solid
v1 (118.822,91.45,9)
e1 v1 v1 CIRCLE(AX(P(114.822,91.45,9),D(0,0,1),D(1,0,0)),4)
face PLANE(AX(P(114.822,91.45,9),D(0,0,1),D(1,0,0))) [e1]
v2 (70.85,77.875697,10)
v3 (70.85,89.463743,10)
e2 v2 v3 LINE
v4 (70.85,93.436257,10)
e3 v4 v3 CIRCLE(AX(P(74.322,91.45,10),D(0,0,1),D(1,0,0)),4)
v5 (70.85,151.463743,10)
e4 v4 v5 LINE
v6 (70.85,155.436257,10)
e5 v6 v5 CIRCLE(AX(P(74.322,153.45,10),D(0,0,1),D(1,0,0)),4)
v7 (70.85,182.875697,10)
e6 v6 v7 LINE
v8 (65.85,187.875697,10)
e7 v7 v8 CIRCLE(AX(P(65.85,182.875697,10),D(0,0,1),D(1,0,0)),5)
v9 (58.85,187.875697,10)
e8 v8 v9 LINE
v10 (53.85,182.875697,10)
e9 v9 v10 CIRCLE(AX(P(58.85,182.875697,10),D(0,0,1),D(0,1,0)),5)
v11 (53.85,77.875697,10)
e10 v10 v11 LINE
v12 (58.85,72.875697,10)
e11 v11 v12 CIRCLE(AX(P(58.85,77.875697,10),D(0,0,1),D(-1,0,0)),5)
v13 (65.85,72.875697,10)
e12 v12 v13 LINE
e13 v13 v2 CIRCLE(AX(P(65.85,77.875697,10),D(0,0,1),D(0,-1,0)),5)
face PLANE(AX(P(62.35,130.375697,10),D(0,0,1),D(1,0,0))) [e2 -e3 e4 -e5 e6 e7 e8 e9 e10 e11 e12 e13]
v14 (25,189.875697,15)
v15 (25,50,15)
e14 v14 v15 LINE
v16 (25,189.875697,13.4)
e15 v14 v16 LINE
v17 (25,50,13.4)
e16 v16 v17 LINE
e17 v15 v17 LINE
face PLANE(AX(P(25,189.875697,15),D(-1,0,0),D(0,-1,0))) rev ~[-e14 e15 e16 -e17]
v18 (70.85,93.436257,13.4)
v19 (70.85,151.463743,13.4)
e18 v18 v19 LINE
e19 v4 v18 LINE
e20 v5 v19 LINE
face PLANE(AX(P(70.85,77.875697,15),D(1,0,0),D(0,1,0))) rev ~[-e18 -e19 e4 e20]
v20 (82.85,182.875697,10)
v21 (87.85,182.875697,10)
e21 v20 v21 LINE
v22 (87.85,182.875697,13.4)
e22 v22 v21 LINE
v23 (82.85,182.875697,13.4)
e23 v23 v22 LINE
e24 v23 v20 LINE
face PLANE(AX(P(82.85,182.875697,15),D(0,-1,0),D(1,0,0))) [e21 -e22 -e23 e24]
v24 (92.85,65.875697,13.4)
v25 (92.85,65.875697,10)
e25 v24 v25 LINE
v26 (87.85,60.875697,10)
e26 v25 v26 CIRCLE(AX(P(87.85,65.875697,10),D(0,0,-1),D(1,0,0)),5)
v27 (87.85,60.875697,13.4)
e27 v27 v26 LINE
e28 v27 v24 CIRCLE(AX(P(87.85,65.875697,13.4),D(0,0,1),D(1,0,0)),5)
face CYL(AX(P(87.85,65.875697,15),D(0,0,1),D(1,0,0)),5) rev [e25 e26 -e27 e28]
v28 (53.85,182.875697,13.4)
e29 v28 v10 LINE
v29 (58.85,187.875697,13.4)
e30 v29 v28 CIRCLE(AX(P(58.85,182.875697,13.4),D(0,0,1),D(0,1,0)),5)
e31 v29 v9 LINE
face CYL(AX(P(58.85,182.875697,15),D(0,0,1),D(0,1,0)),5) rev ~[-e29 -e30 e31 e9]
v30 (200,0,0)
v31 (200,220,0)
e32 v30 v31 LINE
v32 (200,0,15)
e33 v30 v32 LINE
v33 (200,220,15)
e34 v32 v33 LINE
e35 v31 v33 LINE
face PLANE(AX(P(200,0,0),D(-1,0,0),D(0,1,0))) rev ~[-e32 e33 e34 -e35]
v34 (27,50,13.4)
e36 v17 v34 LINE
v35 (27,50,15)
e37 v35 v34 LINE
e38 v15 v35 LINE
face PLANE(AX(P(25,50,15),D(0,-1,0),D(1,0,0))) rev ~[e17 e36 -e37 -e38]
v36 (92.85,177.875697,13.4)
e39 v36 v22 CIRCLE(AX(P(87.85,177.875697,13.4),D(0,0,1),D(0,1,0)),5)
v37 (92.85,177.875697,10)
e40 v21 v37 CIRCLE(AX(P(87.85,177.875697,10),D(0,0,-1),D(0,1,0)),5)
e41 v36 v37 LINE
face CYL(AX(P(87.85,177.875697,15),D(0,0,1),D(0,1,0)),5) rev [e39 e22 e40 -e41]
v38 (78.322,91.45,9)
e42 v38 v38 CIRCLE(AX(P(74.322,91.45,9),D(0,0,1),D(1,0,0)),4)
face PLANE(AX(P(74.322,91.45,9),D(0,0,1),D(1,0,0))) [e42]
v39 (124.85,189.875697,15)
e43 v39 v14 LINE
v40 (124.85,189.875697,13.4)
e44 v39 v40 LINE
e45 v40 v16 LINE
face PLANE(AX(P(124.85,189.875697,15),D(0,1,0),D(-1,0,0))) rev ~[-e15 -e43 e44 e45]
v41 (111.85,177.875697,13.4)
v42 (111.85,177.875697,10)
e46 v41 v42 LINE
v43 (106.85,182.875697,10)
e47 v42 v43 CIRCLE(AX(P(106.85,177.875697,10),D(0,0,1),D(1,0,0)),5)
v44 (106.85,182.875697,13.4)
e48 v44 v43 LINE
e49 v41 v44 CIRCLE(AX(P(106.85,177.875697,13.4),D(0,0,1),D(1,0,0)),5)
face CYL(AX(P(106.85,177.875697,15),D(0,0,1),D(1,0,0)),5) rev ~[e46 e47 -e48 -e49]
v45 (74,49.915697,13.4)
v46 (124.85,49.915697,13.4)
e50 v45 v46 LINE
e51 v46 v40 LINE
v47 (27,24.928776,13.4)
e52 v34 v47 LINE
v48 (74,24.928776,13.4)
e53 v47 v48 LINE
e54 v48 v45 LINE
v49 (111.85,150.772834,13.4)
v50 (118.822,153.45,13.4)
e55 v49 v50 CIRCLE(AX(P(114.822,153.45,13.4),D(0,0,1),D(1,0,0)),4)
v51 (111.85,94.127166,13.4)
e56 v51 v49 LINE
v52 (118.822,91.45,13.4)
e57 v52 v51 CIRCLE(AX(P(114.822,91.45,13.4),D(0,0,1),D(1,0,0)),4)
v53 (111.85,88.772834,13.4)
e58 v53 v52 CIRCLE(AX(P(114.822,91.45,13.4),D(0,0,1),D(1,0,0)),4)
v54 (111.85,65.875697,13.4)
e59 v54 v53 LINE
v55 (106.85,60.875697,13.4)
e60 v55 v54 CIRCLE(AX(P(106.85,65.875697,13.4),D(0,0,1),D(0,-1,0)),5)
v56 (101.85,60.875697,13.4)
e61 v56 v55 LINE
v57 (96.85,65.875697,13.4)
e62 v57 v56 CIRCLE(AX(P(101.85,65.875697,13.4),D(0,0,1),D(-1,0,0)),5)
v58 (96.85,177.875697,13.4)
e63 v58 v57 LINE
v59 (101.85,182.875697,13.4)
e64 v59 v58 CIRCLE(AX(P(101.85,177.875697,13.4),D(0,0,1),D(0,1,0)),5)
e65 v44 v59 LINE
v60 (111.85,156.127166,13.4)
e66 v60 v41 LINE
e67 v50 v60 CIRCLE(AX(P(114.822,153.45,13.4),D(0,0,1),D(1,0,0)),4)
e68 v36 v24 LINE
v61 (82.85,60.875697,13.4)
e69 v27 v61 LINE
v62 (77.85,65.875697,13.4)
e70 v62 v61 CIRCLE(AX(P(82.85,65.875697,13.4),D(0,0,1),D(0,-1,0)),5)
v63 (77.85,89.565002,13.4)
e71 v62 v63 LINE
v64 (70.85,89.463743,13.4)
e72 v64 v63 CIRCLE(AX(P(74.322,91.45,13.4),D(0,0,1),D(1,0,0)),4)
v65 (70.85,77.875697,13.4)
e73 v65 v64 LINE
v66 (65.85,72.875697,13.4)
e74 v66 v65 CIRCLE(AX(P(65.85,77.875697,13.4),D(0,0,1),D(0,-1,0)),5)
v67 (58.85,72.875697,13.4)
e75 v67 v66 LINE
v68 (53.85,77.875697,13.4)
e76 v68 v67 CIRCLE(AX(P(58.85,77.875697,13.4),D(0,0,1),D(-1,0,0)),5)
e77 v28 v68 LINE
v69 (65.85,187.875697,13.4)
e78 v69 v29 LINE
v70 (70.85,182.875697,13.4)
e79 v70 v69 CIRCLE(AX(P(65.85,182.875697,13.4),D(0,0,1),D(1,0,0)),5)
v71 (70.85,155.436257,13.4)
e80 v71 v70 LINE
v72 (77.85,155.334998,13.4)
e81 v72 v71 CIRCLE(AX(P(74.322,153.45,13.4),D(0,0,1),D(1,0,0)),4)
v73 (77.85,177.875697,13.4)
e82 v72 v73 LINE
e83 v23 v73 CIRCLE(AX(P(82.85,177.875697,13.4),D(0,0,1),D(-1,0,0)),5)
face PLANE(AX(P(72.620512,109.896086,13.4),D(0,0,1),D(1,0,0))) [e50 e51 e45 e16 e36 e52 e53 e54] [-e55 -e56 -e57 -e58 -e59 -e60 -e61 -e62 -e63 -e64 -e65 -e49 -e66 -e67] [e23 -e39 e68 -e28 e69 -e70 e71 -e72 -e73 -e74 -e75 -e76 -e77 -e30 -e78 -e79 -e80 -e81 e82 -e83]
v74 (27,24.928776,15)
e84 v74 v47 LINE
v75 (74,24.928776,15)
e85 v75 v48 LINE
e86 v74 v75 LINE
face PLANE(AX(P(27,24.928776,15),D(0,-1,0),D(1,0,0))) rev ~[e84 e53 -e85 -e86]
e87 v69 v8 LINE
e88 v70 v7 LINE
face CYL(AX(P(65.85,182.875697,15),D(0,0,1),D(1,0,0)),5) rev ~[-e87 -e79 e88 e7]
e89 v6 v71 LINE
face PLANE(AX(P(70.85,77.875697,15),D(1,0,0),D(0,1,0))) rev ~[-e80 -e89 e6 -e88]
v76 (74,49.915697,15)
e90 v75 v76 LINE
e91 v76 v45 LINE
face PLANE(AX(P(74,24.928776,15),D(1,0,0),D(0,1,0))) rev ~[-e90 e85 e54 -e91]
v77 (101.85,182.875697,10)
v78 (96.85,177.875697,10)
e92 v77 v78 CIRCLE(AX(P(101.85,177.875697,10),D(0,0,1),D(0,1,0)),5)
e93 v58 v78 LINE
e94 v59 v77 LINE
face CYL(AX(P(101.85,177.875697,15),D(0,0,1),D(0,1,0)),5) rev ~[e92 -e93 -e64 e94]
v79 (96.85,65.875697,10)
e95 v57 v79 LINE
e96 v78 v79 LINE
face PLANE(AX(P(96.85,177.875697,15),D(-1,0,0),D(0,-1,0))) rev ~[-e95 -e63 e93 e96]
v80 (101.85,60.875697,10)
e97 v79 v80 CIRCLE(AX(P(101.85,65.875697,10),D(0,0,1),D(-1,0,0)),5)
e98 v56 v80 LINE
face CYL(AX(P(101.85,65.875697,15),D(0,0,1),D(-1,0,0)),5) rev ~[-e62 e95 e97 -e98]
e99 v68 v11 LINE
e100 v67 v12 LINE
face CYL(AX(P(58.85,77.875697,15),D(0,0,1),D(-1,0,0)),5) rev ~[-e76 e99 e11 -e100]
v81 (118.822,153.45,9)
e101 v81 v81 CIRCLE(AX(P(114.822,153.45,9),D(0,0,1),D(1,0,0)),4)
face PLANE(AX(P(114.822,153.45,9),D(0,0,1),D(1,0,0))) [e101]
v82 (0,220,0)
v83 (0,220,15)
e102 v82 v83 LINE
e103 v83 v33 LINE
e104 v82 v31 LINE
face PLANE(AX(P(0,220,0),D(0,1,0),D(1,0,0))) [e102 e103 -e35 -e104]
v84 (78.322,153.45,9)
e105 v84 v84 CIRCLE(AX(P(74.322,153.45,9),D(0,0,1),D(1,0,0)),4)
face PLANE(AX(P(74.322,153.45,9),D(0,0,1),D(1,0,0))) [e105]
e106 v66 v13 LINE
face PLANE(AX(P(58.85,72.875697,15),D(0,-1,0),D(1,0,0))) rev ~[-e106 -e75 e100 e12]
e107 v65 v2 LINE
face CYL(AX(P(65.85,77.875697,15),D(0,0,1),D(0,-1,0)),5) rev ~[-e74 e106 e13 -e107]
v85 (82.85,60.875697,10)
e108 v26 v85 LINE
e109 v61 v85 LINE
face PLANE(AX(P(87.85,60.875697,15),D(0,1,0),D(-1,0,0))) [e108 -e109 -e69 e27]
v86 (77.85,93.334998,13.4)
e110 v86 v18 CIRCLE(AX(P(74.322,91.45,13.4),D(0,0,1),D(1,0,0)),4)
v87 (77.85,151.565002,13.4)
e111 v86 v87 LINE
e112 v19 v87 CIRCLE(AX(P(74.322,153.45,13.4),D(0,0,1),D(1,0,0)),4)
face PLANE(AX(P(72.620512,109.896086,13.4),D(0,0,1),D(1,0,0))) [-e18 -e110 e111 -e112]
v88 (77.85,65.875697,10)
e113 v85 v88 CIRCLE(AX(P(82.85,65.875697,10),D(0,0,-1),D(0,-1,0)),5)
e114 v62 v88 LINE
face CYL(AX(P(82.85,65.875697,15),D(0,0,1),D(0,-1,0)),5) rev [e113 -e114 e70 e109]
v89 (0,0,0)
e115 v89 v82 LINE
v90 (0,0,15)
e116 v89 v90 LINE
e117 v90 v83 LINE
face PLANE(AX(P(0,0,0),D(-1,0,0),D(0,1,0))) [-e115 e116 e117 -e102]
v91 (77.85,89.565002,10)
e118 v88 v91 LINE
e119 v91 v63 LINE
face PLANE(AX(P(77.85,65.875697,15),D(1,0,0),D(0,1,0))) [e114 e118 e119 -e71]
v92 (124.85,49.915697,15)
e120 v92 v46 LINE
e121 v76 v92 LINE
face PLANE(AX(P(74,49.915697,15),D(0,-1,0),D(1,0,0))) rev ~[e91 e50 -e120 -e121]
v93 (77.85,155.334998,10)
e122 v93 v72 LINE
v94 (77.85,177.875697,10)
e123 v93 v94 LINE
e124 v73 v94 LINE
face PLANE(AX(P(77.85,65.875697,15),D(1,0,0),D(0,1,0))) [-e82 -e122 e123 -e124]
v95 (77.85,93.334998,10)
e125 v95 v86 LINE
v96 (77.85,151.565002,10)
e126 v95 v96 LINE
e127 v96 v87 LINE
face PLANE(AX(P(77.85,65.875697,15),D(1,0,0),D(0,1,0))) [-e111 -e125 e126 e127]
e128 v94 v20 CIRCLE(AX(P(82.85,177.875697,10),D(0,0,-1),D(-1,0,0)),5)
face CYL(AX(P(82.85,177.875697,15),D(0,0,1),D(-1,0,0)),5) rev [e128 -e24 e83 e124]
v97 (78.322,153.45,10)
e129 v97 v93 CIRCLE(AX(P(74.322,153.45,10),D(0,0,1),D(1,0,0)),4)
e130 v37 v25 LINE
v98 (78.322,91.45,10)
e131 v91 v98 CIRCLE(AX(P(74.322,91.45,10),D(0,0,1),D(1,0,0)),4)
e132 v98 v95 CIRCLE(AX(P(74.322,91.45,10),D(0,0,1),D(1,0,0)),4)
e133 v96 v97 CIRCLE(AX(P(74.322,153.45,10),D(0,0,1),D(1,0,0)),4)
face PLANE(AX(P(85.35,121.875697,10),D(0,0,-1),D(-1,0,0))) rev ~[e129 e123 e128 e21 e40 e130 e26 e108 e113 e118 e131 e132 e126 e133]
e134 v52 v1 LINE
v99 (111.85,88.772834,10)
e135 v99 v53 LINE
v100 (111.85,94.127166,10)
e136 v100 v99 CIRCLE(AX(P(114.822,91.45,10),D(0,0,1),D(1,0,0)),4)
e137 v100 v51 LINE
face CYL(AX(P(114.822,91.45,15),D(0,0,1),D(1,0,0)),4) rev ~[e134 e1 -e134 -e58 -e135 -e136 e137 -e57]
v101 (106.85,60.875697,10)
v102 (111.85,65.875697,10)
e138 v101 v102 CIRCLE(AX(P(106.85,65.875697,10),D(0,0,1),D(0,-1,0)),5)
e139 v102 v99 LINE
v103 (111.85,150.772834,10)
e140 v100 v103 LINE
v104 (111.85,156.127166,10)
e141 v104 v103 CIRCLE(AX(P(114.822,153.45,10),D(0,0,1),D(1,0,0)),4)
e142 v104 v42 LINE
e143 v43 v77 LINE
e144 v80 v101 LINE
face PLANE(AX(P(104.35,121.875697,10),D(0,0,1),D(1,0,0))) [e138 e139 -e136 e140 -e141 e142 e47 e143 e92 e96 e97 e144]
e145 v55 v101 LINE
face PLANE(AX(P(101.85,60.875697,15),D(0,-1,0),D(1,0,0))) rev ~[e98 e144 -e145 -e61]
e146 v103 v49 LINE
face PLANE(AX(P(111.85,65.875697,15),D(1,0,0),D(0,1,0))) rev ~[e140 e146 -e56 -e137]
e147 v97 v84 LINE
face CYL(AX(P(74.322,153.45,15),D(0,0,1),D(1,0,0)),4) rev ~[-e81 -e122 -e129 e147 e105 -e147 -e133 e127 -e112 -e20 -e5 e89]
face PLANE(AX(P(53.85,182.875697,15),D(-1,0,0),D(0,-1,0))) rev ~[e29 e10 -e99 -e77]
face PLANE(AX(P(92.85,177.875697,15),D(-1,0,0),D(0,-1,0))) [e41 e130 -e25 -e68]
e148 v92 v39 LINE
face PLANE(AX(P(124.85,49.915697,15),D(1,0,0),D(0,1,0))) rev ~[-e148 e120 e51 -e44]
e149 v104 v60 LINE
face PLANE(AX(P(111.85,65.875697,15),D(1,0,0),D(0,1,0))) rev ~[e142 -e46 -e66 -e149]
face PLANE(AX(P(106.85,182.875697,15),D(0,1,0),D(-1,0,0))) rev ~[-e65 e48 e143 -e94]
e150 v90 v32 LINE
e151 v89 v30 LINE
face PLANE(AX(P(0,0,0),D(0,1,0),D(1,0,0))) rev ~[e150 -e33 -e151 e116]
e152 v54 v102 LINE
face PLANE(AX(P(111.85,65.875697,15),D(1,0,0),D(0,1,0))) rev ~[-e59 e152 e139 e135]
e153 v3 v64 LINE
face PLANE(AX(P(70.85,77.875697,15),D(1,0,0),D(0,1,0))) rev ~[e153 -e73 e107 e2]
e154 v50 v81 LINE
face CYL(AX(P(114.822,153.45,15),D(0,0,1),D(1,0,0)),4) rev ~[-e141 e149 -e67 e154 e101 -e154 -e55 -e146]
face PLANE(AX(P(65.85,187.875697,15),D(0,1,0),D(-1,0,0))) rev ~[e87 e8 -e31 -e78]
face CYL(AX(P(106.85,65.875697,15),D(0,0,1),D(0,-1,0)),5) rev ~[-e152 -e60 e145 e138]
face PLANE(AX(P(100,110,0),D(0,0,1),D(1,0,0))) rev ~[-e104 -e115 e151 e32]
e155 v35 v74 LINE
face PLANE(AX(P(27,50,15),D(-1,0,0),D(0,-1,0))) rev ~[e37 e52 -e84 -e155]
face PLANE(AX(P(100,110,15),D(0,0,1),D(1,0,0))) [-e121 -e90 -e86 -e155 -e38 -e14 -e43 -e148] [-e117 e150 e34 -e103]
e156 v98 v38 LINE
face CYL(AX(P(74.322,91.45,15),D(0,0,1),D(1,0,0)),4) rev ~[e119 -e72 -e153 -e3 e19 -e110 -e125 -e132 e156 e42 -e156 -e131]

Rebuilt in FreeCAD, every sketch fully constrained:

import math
import FreeCAD as App
import Part
import Sketcher
Q = App.Units.Quantity

doc = App.newDocument("Part")
body = doc.addObject("PartDesign::Body", "Body")

sketch1 = doc.addObject("Sketcher::SketchObject", "Sketch")
body.addObject(sketch1)
sketch1.AttachmentSupport = (doc.XY_Plane, [""])
sketch1.MapMode = "FlatFace"
sketch1.addGeometry([
    Part.LineSegment(App.Vector(0, 220, 0), App.Vector(0, 0, 0)),
    Part.LineSegment(App.Vector(0, 0, 0), App.Vector(200, 0, 0)),
    Part.LineSegment(App.Vector(200, 0, 0), App.Vector(200, 220, 0)),
    Part.LineSegment(App.Vector(200, 220, 0), App.Vector(0, 220, 0)),
], False)
sketch1.addConstraint([
    Sketcher.Constraint("Coincident", 0, 2, 1, 1),
    Sketcher.Constraint("Coincident", 1, 2, 2, 1),
    Sketcher.Constraint("Coincident", 2, 2, 3, 1),
    Sketcher.Constraint("Coincident", 3, 2, 0, 1),
    Sketcher.Constraint("Vertical", 0),
    Sketcher.Constraint("Horizontal", 1),
    Sketcher.Constraint("Vertical", 2),
    Sketcher.Constraint("Horizontal", 3),
    Sketcher.Constraint("Coincident", 0, 2, -1, 1),
    Sketcher.Constraint("DistanceX", 1, 1, 1, 2, Q("200 mm")),
    Sketcher.Constraint("DistanceY", 0, 2, 0, 1, Q("220 mm")),
])
pad1 = doc.addObject("PartDesign::Pad", "Pad")
body.addObject(pad1)
pad1.Profile = sketch1
pad1.Length = 15

sketch2 = doc.addObject("Sketcher::SketchObject", "Sketch001")
body.addObject(sketch2)
sketch2.AttachmentSupport = (doc.XY_Plane, [""])
sketch2.MapMode = "FlatFace"
sketch2.AttachmentOffset = App.Placement(App.Vector(0, 0, 15), App.Rotation())
sketch2.addGeometry([
    Part.Circle(App.Vector(74.3, 91.5, 0), App.Vector(0, 0, 1), 4),
    Part.Circle(App.Vector(74.3, 153.4, 0), App.Vector(0, 0, 1), 4),
    Part.Circle(App.Vector(114.8, 91.5, 0), App.Vector(0, 0, 1), 4),
    Part.Circle(App.Vector(114.8, 153.4, 0), App.Vector(0, 0, 1), 4),
], False)
sketch2.addConstraint([
    Sketcher.Constraint("Equal", 0, 1),
    Sketcher.Constraint("Equal", 1, 2),
    Sketcher.Constraint("Equal", 2, 3),
    Sketcher.Constraint("Horizontal", 0, 3, 2, 3),
    Sketcher.Constraint("Horizontal", 1, 3, 3, 3),
    Sketcher.Constraint("Vertical", 0, 3, 1, 3),
    Sketcher.Constraint("Vertical", 2, 3, 3, 3),
    Sketcher.Constraint("Diameter", 0, Q("8 mm")),
    Sketcher.Constraint("DistanceY", 0, 3, 1, 3, Q("62 mm")),
    Sketcher.Constraint("DistanceX", 0, 3, 2, 3, Q("40.5 mm")),
    Sketcher.Constraint("DistanceY", -1, 1, 0, 3, Q("91.45 mm")),
    Sketcher.Constraint("DistanceX", -1, 1, 0, 3, Q("74.322 mm")),
])
pocket1 = doc.addObject("PartDesign::Pocket", "Pocket")
body.addObject(pocket1)
pocket1.Profile = sketch2
pocket1.Length = 6

sketch3 = doc.addObject("Sketcher::SketchObject", "Sketch002")
body.addObject(sketch3)
sketch3.AttachmentSupport = (doc.XY_Plane, [""])
sketch3.MapMode = "FlatFace"
sketch3.AttachmentOffset = App.Placement(App.Vector(0, 0, 15), App.Rotation())
sketch3.addGeometry([
    Part.LineSegment(App.Vector(27, 50, 0), App.Vector(27, 24.9, 0)),
    Part.LineSegment(App.Vector(27, 24.9, 0), App.Vector(74, 24.9, 0)),
    Part.LineSegment(App.Vector(74, 24.9, 0), App.Vector(74, 49.9, 0)),
    Part.LineSegment(App.Vector(74, 49.9, 0), App.Vector(124.8, 49.9, 0)),
    Part.LineSegment(App.Vector(124.8, 49.9, 0), App.Vector(124.8, 189.9, 0)),
    Part.LineSegment(App.Vector(124.8, 189.9, 0), App.Vector(25, 189.9, 0)),
    Part.LineSegment(App.Vector(25, 189.9, 0), App.Vector(25, 50, 0)),
    Part.LineSegment(App.Vector(25, 50, 0), App.Vector(27, 50, 0)),
], False)
sketch3.addConstraint([
    Sketcher.Constraint("Coincident", 0, 2, 1, 1),
    Sketcher.Constraint("Coincident", 1, 2, 2, 1),
    Sketcher.Constraint("Coincident", 2, 2, 3, 1),
    Sketcher.Constraint("Coincident", 3, 2, 4, 1),
    Sketcher.Constraint("Coincident", 4, 2, 5, 1),
    Sketcher.Constraint("Coincident", 5, 2, 6, 1),
    Sketcher.Constraint("Coincident", 6, 2, 7, 1),
    Sketcher.Constraint("Coincident", 7, 2, 0, 1),
    Sketcher.Constraint("Vertical", 0),
    Sketcher.Constraint("Horizontal", 1),
    Sketcher.Constraint("Vertical", 2),
    Sketcher.Constraint("Horizontal", 3),
    Sketcher.Constraint("Vertical", 4),
    Sketcher.Constraint("Horizontal", 5),
    Sketcher.Constraint("Vertical", 6),
    Sketcher.Constraint("Horizontal", 7),
    Sketcher.Constraint("DistanceX", 1, 1, 1, 2, Q("47 mm")),
    Sketcher.Constraint("DistanceX", 7, 1, 7, 2, Q("2 mm")),
    Sketcher.Constraint("DistanceX", -1, 1, 0, 2, Q("27 mm")),
    Sketcher.Constraint("DistanceY", -1, 1, 6, 2, Q("50 mm")),
    Sketcher.Constraint("DistanceX", 3, 1, 3, 2, Q("50.85 mm")),
    Sketcher.Constraint("DistanceY", 4, 1, 4, 2, Q("139.96 mm")),
    Sketcher.Constraint("DistanceY", 2, 1, 2, 2, Q("24.986921 mm")),
    Sketcher.Constraint("DistanceY", 0, 2, 0, 1, Q("25.071224 mm")),
])
pocket2 = doc.addObject("PartDesign::Pocket", "Pocket001")
body.addObject(pocket2)
pocket2.Profile = sketch3
pocket2.Length = 1.6

sketch4 = doc.addObject("Sketcher::SketchObject", "Sketch003")
body.addObject(sketch4)
sketch4.AttachmentSupport = (doc.XY_Plane, [""])
sketch4.MapMode = "FlatFace"
sketch4.AttachmentOffset = App.Placement(App.Vector(0, 0, 15), App.Rotation())
sketch4.addGeometry([
    Part.LineSegment(App.Vector(107, 183, 0), App.Vector(102, 183, 0)),
    Part.ArcOfCircle(Part.Circle(App.Vector(102, 178, 0), App.Vector(0, 0, 1), 5), math.radians(90), math.radians(180)),
    Part.LineSegment(App.Vector(97, 178, 0), App.Vector(97, 66, 0)),
    Part.ArcOfCircle(Part.Circle(App.Vector(102, 66, 0), App.Vector(0, 0, 1), 5), math.radians(180), math.radians(270)),
    Part.LineSegment(App.Vector(102, 61, 0), App.Vector(107, 61, 0)),
    Part.ArcOfCircle(Part.Circle(App.Vector(107, 66, 0), App.Vector(0, 0, 1), 5), math.radians(-90), math.radians(0)),
    Part.LineSegment(App.Vector(112, 66, 0), App.Vector(112, 178, 0)),
    Part.ArcOfCircle(Part.Circle(App.Vector(107, 178, 0), App.Vector(0, 0, 1), 5), math.radians(0), math.radians(90)),
    Part.LineSegment(App.Vector(83, 61, 0), App.Vector(88, 61, 0)),
    Part.ArcOfCircle(Part.Circle(App.Vector(88, 66, 0), App.Vector(0, 0, 1), 5), math.radians(-90), math.radians(0)),
    Part.LineSegment(App.Vector(93, 66, 0), App.Vector(93, 178, 0)),
    Part.ArcOfCircle(Part.Circle(App.Vector(88, 178, 0), App.Vector(0, 0, 1), 5), math.radians(0), math.radians(90)),
    Part.LineSegment(App.Vector(88, 183, 0), App.Vector(83, 183, 0)),
    Part.ArcOfCircle(Part.Circle(App.Vector(83, 178, 0), App.Vector(0, 0, 1), 5), math.radians(90), math.radians(180)),
    Part.LineSegment(App.Vector(78, 178, 0), App.Vector(78, 66, 0)),
    Part.ArcOfCircle(Part.Circle(App.Vector(83, 66, 0), App.Vector(0, 0, 1), 5), math.radians(180), math.radians(270)),
    Part.LineSegment(App.Vector(66, 188, 0), App.Vector(59, 188, 0)),
    Part.ArcOfCircle(Part.Circle(App.Vector(59, 183, 0), App.Vector(0, 0, 1), 5), math.radians(90), math.radians(180)),
    Part.LineSegment(App.Vector(54, 183, 0), App.Vector(54, 78, 0)),
    Part.ArcOfCircle(Part.Circle(App.Vector(59, 78, 0), App.Vector(0, 0, 1), 5), math.radians(180), math.radians(270)),
    Part.LineSegment(App.Vector(59, 73, 0), App.Vector(66, 73, 0)),
    Part.ArcOfCircle(Part.Circle(App.Vector(66, 78, 0), App.Vector(0, 0, 1), 5), math.radians(-90), math.radians(0)),
    Part.LineSegment(App.Vector(71, 78, 0), App.Vector(71, 183, 0)),
    Part.ArcOfCircle(Part.Circle(App.Vector(66, 183, 0), App.Vector(0, 0, 1), 5), math.radians(0), math.radians(90)),
], False)
sketch4.addConstraint([
    Sketcher.Constraint("Tangent", 0, 2, 1, 1),
    Sketcher.Constraint("Tangent", 1, 2, 2, 1),
    Sketcher.Constraint("Tangent", 2, 2, 3, 1),
    Sketcher.Constraint("Tangent", 3, 2, 4, 1),
    Sketcher.Constraint("Tangent", 4, 2, 5, 1),
    Sketcher.Constraint("Tangent", 5, 2, 6, 1),
    Sketcher.Constraint("Tangent", 6, 2, 7, 1),
    Sketcher.Constraint("Tangent", 7, 2, 0, 1),
    Sketcher.Constraint("Tangent", 8, 2, 9, 1),
    Sketcher.Constraint("Tangent", 9, 2, 10, 1),
    Sketcher.Constraint("Tangent", 10, 2, 11, 1),
    Sketcher.Constraint("Tangent", 11, 2, 12, 1),
    Sketcher.Constraint("Tangent", 12, 2, 13, 1),
    Sketcher.Constraint("Tangent", 13, 2, 14, 1),
    Sketcher.Constraint("Tangent", 14, 2, 15, 1),
    Sketcher.Constraint("Tangent", 15, 2, 8, 1),
    Sketcher.Constraint("Tangent", 16, 2, 17, 1),
    Sketcher.Constraint("Tangent", 17, 2, 18, 1),
    Sketcher.Constraint("Tangent", 18, 2, 19, 1),
    Sketcher.Constraint("Tangent", 19, 2, 20, 1),
    Sketcher.Constraint("Tangent", 20, 2, 21, 1),
    Sketcher.Constraint("Tangent", 21, 2, 22, 1),
    Sketcher.Constraint("Tangent", 22, 2, 23, 1),
    Sketcher.Constraint("Tangent", 23, 2, 16, 1),
    Sketcher.Constraint("Horizontal", 0),
    Sketcher.Constraint("Vertical", 2),
    Sketcher.Constraint("Horizontal", 4),
    Sketcher.Constraint("Vertical", 6),
    Sketcher.Constraint("Horizontal", 8),
    Sketcher.Constraint("Vertical", 10),
    Sketcher.Constraint("Horizontal", 12),
    Sketcher.Constraint("Vertical", 14),
    Sketcher.Constraint("Horizontal", 16),
    Sketcher.Constraint("Vertical", 18),
    Sketcher.Constraint("Horizontal", 20),
    Sketcher.Constraint("Vertical", 22),
    Sketcher.Constraint("Equal", 1, 3),
    Sketcher.Constraint("Equal", 3, 5),
    Sketcher.Constraint("Equal", 5, 7),
    Sketcher.Constraint("Equal", 7, 9),
    Sketcher.Constraint("Equal", 9, 11),
    Sketcher.Constraint("Equal", 11, 13),
    Sketcher.Constraint("Equal", 13, 15),
    Sketcher.Constraint("Equal", 15, 17),
    Sketcher.Constraint("Equal", 17, 19),
    Sketcher.Constraint("Equal", 19, 21),
    Sketcher.Constraint("Equal", 21, 23),
    Sketcher.Constraint("Horizontal", 5, 3, 9, 3),
    Sketcher.Constraint("Horizontal", 7, 3, 11, 3),
    Sketcher.Constraint("Horizontal", 23, 3, 0, 2),
    Sketcher.Constraint("Equal", 4, 8),
    Sketcher.Constraint("Radius", 1, Q("5 mm")),
    Sketcher.Constraint("DistanceX", 0, 2, 0, 1, Q("5 mm")),
    Sketcher.Constraint("DistanceX", 16, 2, 16, 1, Q("7 mm")),
    Sketcher.Constraint("DistanceY", 2, 2, 2, 1, Q("112 mm")),
    Sketcher.Constraint("DistanceY", 18, 2, 18, 1, Q("105 mm")),
    Sketcher.Constraint("DistanceX", 9, 3, 3, 3, Q("14 mm")),
    Sketcher.Constraint("DistanceX", 17, 3, 13, 3, Q("24 mm")),
    Sketcher.Constraint("DistanceX", -1, 1, 1, 3, Q("101.85 mm")),
    Sketcher.Constraint("DistanceY", -1, 1, 1, 3, Q("177.875697 mm")),
])
pocket3 = doc.addObject("PartDesign::Pocket", "Pocket002")
body.addObject(pocket3)
pocket3.Profile = sketch4
pocket3.Length = 5

doc.recompute()
